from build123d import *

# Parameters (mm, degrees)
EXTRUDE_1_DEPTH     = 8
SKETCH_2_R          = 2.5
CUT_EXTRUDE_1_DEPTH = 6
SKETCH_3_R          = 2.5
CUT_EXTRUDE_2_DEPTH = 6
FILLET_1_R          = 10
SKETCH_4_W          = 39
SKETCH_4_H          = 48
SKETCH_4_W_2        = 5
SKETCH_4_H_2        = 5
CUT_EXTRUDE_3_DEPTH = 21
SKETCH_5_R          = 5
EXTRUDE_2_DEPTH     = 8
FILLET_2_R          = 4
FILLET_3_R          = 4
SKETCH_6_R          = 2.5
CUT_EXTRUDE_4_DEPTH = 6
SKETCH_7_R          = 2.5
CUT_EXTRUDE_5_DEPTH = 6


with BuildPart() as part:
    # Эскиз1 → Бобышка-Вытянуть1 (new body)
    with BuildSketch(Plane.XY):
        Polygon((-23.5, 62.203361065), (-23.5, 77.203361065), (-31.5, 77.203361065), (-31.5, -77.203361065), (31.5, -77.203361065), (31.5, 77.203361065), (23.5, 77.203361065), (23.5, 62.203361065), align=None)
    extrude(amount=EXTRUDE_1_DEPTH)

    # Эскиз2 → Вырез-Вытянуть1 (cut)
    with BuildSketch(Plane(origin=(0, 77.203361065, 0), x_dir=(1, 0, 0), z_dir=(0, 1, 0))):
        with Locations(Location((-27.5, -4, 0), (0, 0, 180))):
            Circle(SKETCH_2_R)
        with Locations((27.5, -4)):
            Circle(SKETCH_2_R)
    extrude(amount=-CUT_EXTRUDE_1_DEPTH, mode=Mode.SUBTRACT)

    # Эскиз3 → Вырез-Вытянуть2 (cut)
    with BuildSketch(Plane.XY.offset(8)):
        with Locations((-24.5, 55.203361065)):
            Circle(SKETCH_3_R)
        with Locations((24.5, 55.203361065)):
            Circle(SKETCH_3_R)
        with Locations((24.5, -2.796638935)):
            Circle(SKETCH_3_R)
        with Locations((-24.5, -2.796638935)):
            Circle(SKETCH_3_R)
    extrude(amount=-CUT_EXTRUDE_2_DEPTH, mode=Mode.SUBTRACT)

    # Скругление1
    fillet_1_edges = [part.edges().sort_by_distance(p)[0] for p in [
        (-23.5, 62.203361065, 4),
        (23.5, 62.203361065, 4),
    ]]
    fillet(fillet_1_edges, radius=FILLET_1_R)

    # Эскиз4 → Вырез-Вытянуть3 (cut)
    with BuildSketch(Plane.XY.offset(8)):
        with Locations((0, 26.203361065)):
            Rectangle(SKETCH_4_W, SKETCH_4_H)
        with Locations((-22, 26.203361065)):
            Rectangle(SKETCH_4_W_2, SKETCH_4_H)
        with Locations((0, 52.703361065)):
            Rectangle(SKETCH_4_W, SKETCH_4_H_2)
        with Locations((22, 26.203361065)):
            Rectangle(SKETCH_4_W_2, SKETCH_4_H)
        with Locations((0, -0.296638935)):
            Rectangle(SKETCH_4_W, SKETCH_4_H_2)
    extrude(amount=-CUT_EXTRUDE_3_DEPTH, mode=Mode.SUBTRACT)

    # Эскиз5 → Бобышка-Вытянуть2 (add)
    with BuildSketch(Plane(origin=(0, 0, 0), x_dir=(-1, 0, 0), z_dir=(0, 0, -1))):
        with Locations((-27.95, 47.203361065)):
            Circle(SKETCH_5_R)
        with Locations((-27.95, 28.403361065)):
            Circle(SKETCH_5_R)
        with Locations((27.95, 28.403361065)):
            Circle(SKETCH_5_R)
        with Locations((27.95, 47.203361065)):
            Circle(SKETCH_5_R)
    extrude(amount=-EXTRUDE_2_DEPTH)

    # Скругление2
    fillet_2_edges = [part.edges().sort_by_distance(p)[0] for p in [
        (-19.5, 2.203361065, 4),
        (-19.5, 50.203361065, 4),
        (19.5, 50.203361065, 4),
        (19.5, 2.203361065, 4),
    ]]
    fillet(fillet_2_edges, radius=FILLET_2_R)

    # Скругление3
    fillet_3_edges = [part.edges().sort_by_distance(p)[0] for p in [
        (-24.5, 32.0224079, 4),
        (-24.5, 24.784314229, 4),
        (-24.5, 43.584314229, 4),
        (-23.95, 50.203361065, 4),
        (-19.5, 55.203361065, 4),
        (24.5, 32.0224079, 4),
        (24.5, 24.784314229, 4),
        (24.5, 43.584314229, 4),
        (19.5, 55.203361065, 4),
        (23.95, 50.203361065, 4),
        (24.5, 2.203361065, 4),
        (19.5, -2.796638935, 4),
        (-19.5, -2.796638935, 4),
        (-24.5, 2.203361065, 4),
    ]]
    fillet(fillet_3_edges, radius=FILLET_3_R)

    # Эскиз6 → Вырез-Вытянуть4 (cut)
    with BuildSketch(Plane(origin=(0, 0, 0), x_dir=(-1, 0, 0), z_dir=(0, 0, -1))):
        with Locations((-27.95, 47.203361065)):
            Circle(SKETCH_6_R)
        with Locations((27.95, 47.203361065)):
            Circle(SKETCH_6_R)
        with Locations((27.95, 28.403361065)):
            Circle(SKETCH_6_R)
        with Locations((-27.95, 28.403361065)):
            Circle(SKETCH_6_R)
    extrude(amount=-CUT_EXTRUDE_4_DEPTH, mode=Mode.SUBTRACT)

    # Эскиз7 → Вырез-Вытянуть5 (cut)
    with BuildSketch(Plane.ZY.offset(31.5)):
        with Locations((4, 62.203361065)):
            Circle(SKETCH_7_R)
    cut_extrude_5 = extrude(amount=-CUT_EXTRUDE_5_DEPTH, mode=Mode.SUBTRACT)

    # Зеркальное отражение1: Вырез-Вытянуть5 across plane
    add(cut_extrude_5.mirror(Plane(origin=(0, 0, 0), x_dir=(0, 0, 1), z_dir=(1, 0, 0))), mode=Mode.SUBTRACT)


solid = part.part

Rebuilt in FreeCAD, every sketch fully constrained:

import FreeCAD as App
import Part
import Sketcher

V = App.Vector
Q = App.Units.Quantity


def edges_at(feature, points):
    """Names of the edges that pass closest to the given points."""
    edges = feature.Shape.Edges
    near = lambda p: min(range(len(edges)), key=lambda i: edges[i].distToShape(Part.Vertex(*p))[0])
    return sorted({f"Edge{near(p) + 1}" for p in points})


def add_polygon(sketch, points):
    """Adds a closed chain of lines whose ends are joined by coincident constraints."""
    first, n = sketch.GeometryCount, len(points)
    for a, b in zip(points, points[1:] + points[:1]):
        sketch.addGeometry(Part.LineSegment(App.Vector(*a, 0), App.Vector(*b, 0)), False)
    for i in range(n):
        sketch.addConstraint(Sketcher.Constraint("Coincident", first + i, 2, first + (i + 1) % n, 1))

doc = App.newDocument("Part")
body = doc.addObject("PartDesign::Body", "Body")

sketch1 = doc.addObject("Sketcher::SketchObject", "Sketch")
body.addObject(sketch1)
sketch1.AttachmentSupport = (doc.XY_Plane, [""])
sketch1.MapMode = "FlatFace"
add_polygon(sketch1, [(-24, 62), (-24, 77), (-32, 77), (-32, -77), (32, -77), (32, 77), (24, 77), (24, 62)])
sketch1.addConstraint([
    Sketcher.Constraint("Vertical", 0),
    Sketcher.Constraint("Horizontal", 1),
    Sketcher.Constraint("Vertical", 2),
    Sketcher.Constraint("Horizontal", 3),
    Sketcher.Constraint("Vertical", 4),
    Sketcher.Constraint("Horizontal", 5),
    Sketcher.Constraint("Vertical", 6),
    Sketcher.Constraint("Horizontal", 7),
    Sketcher.Constraint("Symmetric", 1, 2, 3, 2, -1, 1),
    Sketcher.Constraint("Symmetric", 0, 2, 5, 2, -2),
    Sketcher.Constraint("DistanceX", 1, 2, 1, 1, Q("8 mm")),
    Sketcher.Constraint("DistanceX", 3, 1, 3, 2, Q("63 mm")),
    Sketcher.Constraint("DistanceY", 0, 1, 0, 2, Q("15 mm")),
    Sketcher.Constraint("DistanceY", 2, 2, 2, 1, Q("154.406722 mm")),
])
pad1 = doc.addObject("PartDesign::Pad", "Pad")
body.addObject(pad1)
pad1.Profile = sketch1
pad1.Length = 8

sketch2 = doc.addObject("Sketcher::SketchObject", "Sketch001")
body.addObject(sketch2)
sketch2.AttachmentSupport = (doc.XZ_Plane, [""])
sketch2.MapMode = "FlatFace"
sketch2.AttachmentOffset = App.Placement(V(0, 0, -77.203361), App.Rotation())
sketch2.addGeometry([
    Part.Circle(V(-27.5, 4, 0), V(0, 0, 1), 2.5),
    Part.Circle(V(27.5, 4, 0), V(0, 0, 1), 2.5),
], False)
sketch2.addConstraint([
    Sketcher.Constraint("Equal", 0, 1),
    Sketcher.Constraint("Symmetric", 0, 3, 1, 3, -2),
    Sketcher.Constraint("Diameter", 0, Q("5 mm")),
    Sketcher.Constraint("DistanceY", -1, 1, 0, 3, Q("4 mm")),
    Sketcher.Constraint("DistanceX", 0, 3, 1, 3, Q("55 mm")),
])
pocket1 = doc.addObject("PartDesign::Pocket", "Pocket")
body.addObject(pocket1)
pocket1.Profile = sketch2
pocket1.Length = 6
pocket1.Reversed = True

sketch3 = doc.addObject("Sketcher::SketchObject", "Sketch002")
body.addObject(sketch3)
sketch3.AttachmentSupport = (doc.XY_Plane, [""])
sketch3.MapMode = "FlatFace"
sketch3.AttachmentOffset = App.Placement(V(0, 0, 8), App.Rotation())
sketch3.addGeometry([
    Part.Circle(V(-24.5, 55.2, 0), V(0, 0, 1), 2.5),
    Part.Circle(V(24.5, 55.2, 0), V(0, 0, 1), 2.5),
    Part.Circle(V(24.5, -2.8, 0), V(0, 0, 1), 2.5),
    Part.Circle(V(-24.5, -2.8, 0), V(0, 0, 1), 2.5),
], False)
sketch3.addConstraint([
    Sketcher.Constraint("Equal", 0, 1),
    Sketcher.Constraint("Equal", 1, 2),
    Sketcher.Constraint("Equal", 2, 3),
    Sketcher.Constraint("Symmetric", 0, 3, 1, 3, -2),
    Sketcher.Constraint("Symmetric", 2, 3, 3, 3, -2),
    Sketcher.Constraint("Vertical", 1, 3, 2, 3),
    Sketcher.Constraint("Diameter", 0, Q("5 mm")),
    Sketcher.Constraint("DistanceX", 0, 3, 1, 3, Q("49 mm")),
    Sketcher.Constraint("DistanceY", 2, 3, 1, 3, Q("58 mm")),
    Sketcher.Constraint("DistanceY", -1, 1, 0, 3, Q("55.203361 mm")),
])
pocket2 = doc.addObject("PartDesign::Pocket", "Pocket001")
body.addObject(pocket2)
pocket2.Profile = sketch3
pocket2.Length = 6
doc.recompute()

fillet = doc.addObject("PartDesign::Fillet", "Fillet")
body.addObject(fillet)
fillet.Base = (pocket2, edges_at(pocket2, [(-23.5, 62.203, 4), (23.5, 62.203, 4)]))
fillet.Radius = 10

sketch4 = doc.addObject("Sketcher::SketchObject", "Sketch003")
body.addObject(sketch4)
sketch4.AttachmentSupport = (doc.XY_Plane, [""])
sketch4.MapMode = "FlatFace"
sketch4.AttachmentOffset = App.Placement(V(0, 0, 8), App.Rotation())
add_polygon(sketch4, [(20, 50), (20, 55), (-20, 55), (-20, 50), (-24, 50), (-24, 2), (-20, 2), (-20, -3), (20, -3), (20, 2), (24, 2), (24, 50)])
sketch4.addConstraint([
    Sketcher.Constraint("Vertical", 0),
    Sketcher.Constraint("Horizontal", 1),
    Sketcher.Constraint("Vertical", 2),
    Sketcher.Constraint("Horizontal", 3),
    Sketcher.Constraint("Vertical", 4),
    Sketcher.Constraint("Horizontal", 5),
    Sketcher.Constraint("Vertical", 6),
    Sketcher.Constraint("Horizontal", 7),
    Sketcher.Constraint("Vertical", 8),
    Sketcher.Constraint("Horizontal", 9),
    Sketcher.Constraint("Vertical", 10),
    Sketcher.Constraint("Horizontal", 11),
    Sketcher.Constraint("Symmetric", 5, 2, 8, 2, -2),
    Sketcher.Constraint("Symmetric", 3, 2, 10, 2, -2),
    Sketcher.Constraint("Vertical", 2, 2, 5, 2),
    Sketcher.Constraint("Vertical", 0, 2, 7, 2),
    Sketcher.Constraint("Equal", 11, 0),
    Sketcher.Constraint("Equal", 2, 6),
    Sketcher.Constraint("DistanceX", 1, 2, 1, 1, Q("39 mm")),
    Sketcher.Constraint("DistanceX", 3, 2, 3, 1, Q("5 mm")),
    Sketcher.Constraint("DistanceY", 4, 2, 4, 1, Q("48 mm")),
    Sketcher.Constraint("DistanceY", -1, 1, 0, 2, Q("55.203361 mm")),
])
pocket3 = doc.addObject("PartDesign::Pocket", "Pocket002")
body.addObject(pocket3)
pocket3.Profile = sketch4
pocket3.Length = 21

sketch5 = doc.addObject("Sketcher::SketchObject", "Sketch004")
body.addObject(sketch5)
sketch5.AttachmentSupport = (doc.XY_Plane, [""])
sketch5.MapMode = "FlatFace"
sketch5.addGeometry([
    Part.Circle(V(28, 47, 0), V(0, 0, 1), 5),
    Part.Circle(V(28, 28, 0), V(0, 0, 1), 5),
    Part.Circle(V(-28, 28, 0), V(0, 0, 1), 5),
    Part.Circle(V(-28, 47, 0), V(0, 0, 1), 5),
], False)
sketch5.addConstraint([
    Sketcher.Constraint("Equal", 0, 1),
    Sketcher.Constraint("Equal", 1, 2),
    Sketcher.Constraint("Equal", 2, 3),
    Sketcher.Constraint("Symmetric", 1, 3, 2, 3, -2),
    Sketcher.Constraint("Symmetric", 0, 3, 3, 3, -2),
    Sketcher.Constraint("Vertical", 0, 3, 1, 3),
    Sketcher.Constraint("Diameter", 0, Q("10 mm")),
    Sketcher.Constraint("DistanceY", 1, 3, 0, 3, Q("18.8 mm")),
    Sketcher.Constraint("DistanceX", 2, 3, 1, 3, Q("55.9 mm")),
    Sketcher.Constraint("DistanceY", -1, 1, 0, 3, Q("47.203361 mm")),
])
pad2 = doc.addObject("PartDesign::Pad", "Pad001")
body.addObject(pad2)
pad2.Profile = sketch5
pad2.Length = 8
doc.recompute()

fillet2 = doc.addObject("PartDesign::Fillet", "Fillet001")
body.addObject(fillet2)
fillet2.Base = (pad2, edges_at(pad2, [
    (-19.5, 2.203, 4),
    (-19.5, 50.203, 4),
    (19.5, 50.203, 4),
    (19.5, 2.203, 4),
]))
fillet2.Radius = 4
doc.recompute()

fillet3 = doc.addObject("PartDesign::Fillet", "Fillet002")
body.addObject(fillet3)
fillet3.Base = (fillet2, edges_at(fillet2, [
    (-24.5, 32.022, 4),
    (-24.5, 24.784, 4),
    (-24.5, 43.584, 4),
    (-23.95, 50.203, 4),
    (-19.5, 55.203, 4),
    (24.5, 32.022, 4),
    (24.5, 24.784, 4),
    (24.5, 43.584, 4),
    (19.5, 55.203, 4),
    (23.95, 50.203, 4),
    (24.5, 2.203, 4),
    (19.5, -2.797, 4),
    (-19.5, -2.797, 4),
    (-24.5, 2.203, 4),
]))
fillet3.Radius = 4

sketch6 = doc.addObject("Sketcher::SketchObject", "Sketch005")
body.addObject(sketch6)
sketch6.AttachmentSupport = (doc.XY_Plane, [""])
sketch6.MapMode = "FlatFace"
sketch6.addGeometry([
    Part.Circle(V(27.9, 47.2, 0), V(0, 0, 1), 2.5),
    Part.Circle(V(-27.9, 47.2, 0), V(0, 0, 1), 2.5),
    Part.Circle(V(-27.9, 28.4, 0), V(0, 0, 1), 2.5),
    Part.Circle(V(27.9, 28.4, 0), V(0, 0, 1), 2.5),
], False)
sketch6.addConstraint([
    Sketcher.Constraint("Equal", 0, 1),
    Sketcher.Constraint("Equal", 1, 2),
    Sketcher.Constraint("Equal", 2, 3),
    Sketcher.Constraint("Symmetric", 0, 3, 1, 3, -2),
    Sketcher.Constraint("Symmetric", 2, 3, 3, 3, -2),
    Sketcher.Constraint("Vertical", 1, 3, 2, 3),
    Sketcher.Constraint("Diameter", 0, Q("5 mm")),
    Sketcher.Constraint("DistanceX", 1, 3, 0, 3, Q("55.9 mm")),
    Sketcher.Constraint("DistanceY", 2, 3, 1, 3, Q("18.8 mm")),
    Sketcher.Constraint("DistanceY", -1, 1, 0, 3, Q("47.203361 mm")),
])
pocket4 = doc.addObject("PartDesign::Pocket", "Pocket003")
body.addObject(pocket4)
pocket4.Profile = sketch6
pocket4.Length = 6
pocket4.Reversed = True

sketch7 = doc.addObject("Sketcher::SketchObject", "Sketch006")
body.addObject(sketch7)
sketch7.AttachmentSupport = (doc.YZ_Plane, [""])
sketch7.MapMode = "FlatFace"
sketch7.AttachmentOffset = App.Placement(V(0, 0, -31.5), App.Rotation())
sketch7.addGeometry(Part.Circle(V(62.2, 4, 0), V(0, 0, 1), 2.5), False)
sketch7.addConstraint([
    Sketcher.Constraint("Diameter", 0, Q("5 mm")),
    Sketcher.Constraint("DistanceY", -1, 1, 0, 3, Q("4 mm")),
    Sketcher.Constraint("DistanceX", -1, 1, 0, 3, Q("62.203361 mm")),
])
pocket5 = doc.addObject("PartDesign::Pocket", "Pocket004")
body.addObject(pocket5)
pocket5.Profile = sketch7
pocket5.Length = 6
pocket5.Reversed = True
doc.recompute()

mirrored = doc.addObject("PartDesign::Mirrored", "Mirrored")
body.addObject(mirrored)
mirrored.Originals = [pocket5]
mirrored.MirrorPlane = (doc.YZ_Plane, [""])
body.Tip = mirrored

doc.recompute()
